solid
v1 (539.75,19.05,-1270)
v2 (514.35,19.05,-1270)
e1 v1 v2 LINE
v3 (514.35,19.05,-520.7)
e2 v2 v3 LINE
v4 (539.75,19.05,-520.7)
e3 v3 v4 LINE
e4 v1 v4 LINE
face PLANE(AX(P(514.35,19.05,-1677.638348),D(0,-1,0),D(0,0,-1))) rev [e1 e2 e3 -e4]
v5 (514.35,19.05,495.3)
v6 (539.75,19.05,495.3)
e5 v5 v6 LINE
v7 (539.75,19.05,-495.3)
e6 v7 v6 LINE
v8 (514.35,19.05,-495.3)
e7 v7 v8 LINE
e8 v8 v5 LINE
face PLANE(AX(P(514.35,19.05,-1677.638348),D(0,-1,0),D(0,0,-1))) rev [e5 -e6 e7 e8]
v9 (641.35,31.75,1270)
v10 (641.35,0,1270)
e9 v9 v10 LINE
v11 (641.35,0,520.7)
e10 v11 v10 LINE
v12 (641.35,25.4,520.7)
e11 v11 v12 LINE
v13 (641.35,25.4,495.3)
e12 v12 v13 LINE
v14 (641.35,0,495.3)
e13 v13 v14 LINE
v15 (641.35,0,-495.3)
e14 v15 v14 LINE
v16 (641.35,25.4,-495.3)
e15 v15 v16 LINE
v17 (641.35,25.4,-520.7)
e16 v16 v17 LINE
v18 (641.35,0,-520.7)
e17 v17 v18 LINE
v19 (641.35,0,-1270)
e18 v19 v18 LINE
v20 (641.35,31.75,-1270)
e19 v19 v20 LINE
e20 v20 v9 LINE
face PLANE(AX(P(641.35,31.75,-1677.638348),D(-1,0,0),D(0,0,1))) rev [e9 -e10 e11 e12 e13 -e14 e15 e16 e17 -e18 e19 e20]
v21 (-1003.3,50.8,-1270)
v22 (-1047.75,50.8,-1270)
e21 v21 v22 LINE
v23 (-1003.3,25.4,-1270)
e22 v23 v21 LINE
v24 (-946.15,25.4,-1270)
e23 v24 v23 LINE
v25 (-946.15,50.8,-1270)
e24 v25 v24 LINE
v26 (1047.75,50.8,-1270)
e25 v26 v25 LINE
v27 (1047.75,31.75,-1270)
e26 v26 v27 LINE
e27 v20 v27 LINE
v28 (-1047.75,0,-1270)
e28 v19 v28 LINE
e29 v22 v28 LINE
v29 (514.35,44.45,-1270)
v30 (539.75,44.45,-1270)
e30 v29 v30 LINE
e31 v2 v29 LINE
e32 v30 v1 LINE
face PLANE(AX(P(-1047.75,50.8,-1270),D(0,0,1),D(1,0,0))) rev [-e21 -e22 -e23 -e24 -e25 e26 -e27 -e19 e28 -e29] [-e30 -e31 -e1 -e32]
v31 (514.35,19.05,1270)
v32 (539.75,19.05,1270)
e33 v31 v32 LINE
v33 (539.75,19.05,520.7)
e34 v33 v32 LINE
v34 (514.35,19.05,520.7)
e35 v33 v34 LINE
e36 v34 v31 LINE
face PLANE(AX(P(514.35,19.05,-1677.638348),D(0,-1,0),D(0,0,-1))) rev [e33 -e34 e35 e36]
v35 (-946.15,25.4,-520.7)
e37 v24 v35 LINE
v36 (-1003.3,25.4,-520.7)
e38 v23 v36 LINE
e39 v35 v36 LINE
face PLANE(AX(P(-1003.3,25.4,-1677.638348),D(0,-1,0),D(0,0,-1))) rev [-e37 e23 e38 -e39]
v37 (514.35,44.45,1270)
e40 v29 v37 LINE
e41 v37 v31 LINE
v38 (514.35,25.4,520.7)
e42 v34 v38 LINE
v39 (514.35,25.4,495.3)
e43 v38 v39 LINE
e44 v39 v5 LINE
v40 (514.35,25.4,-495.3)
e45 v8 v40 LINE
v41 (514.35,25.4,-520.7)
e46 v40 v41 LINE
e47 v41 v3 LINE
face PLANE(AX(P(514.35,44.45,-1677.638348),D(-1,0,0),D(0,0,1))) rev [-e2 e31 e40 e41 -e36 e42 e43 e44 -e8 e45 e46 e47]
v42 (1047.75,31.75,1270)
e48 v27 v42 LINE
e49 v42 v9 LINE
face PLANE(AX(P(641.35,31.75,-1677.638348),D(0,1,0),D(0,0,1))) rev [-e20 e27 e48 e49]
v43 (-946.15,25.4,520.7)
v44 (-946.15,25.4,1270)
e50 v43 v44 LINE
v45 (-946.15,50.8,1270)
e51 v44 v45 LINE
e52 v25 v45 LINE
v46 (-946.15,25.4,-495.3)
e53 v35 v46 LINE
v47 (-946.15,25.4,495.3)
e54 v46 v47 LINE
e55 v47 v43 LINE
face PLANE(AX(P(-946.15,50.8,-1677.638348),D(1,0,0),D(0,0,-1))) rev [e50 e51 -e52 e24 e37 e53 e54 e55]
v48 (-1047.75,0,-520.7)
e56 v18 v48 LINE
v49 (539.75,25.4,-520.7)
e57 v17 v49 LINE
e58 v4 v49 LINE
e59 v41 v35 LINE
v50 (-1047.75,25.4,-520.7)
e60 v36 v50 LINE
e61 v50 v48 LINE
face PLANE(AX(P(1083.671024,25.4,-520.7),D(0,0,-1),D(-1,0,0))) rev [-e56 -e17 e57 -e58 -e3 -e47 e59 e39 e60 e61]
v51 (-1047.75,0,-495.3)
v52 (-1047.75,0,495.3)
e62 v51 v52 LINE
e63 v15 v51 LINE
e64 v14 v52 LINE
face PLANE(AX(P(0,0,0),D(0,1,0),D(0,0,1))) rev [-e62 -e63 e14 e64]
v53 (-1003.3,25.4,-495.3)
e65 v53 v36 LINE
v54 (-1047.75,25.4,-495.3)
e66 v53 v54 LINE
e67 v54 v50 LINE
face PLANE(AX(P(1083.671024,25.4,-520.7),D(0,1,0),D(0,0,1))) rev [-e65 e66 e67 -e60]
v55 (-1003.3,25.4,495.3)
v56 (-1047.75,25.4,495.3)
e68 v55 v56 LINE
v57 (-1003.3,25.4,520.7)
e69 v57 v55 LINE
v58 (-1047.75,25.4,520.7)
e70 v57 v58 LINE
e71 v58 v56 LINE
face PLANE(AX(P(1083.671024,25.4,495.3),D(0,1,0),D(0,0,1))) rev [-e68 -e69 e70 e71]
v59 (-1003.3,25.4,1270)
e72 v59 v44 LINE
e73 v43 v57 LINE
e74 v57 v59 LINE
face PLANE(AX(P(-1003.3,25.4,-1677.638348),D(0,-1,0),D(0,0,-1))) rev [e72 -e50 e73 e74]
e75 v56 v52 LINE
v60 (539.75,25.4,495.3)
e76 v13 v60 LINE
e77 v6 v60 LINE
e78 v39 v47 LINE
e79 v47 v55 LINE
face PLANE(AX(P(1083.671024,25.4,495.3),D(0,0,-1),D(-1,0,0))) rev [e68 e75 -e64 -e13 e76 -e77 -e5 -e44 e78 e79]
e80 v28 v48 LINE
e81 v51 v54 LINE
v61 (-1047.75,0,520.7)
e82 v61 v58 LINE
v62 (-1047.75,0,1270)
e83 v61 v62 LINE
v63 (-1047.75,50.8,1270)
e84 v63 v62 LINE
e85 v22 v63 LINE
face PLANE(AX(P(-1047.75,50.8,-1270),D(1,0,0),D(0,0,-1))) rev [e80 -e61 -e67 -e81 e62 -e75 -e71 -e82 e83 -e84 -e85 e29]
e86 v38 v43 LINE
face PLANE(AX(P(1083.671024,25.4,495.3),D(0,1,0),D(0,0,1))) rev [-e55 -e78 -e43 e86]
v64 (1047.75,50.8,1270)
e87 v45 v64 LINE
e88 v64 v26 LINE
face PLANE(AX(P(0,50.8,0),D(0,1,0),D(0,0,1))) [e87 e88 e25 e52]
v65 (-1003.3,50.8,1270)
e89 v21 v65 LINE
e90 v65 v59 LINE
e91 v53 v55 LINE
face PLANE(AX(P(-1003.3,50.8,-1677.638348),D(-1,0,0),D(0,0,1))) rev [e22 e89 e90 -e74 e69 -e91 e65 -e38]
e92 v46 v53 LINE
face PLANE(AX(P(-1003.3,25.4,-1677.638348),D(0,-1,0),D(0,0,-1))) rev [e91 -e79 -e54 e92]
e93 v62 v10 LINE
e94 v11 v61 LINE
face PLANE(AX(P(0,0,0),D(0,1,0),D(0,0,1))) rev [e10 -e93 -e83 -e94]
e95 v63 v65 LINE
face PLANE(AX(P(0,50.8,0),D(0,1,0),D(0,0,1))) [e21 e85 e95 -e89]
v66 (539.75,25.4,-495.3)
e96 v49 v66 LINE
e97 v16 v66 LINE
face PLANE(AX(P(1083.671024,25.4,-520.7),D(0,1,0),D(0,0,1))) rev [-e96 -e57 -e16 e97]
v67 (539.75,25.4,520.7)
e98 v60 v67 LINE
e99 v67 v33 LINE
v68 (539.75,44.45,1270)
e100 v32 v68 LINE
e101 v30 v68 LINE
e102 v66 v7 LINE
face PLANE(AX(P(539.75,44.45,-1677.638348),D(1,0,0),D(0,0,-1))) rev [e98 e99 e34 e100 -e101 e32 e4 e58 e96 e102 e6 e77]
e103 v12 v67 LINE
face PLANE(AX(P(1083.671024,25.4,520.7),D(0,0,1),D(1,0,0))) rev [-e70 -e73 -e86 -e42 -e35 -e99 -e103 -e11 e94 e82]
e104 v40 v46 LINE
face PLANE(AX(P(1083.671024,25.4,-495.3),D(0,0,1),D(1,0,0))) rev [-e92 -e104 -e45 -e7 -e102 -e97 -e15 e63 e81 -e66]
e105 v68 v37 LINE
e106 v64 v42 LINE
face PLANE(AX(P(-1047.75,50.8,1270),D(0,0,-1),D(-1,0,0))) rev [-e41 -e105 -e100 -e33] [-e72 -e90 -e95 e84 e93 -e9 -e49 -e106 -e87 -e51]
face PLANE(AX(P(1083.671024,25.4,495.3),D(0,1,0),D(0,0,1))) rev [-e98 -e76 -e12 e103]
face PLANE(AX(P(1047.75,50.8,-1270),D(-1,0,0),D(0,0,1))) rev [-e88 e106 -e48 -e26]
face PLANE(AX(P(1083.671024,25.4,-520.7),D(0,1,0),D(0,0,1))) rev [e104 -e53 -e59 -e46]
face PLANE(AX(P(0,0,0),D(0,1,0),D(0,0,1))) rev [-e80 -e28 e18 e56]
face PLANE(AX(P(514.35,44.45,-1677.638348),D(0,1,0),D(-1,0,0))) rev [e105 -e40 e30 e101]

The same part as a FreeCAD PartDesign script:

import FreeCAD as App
import Part
import Sketcher
Q = App.Units.Quantity


def add_polygon(sketch, points):
    """Adds a closed chain of lines whose ends are joined by coincident constraints."""
    first, n = sketch.GeometryCount, len(points)
    for a, b in zip(points, points[1:] + points[:1]):
        sketch.addGeometry(Part.LineSegment(App.Vector(*a, 0), App.Vector(*b, 0)), False)
    for i in range(n):
        sketch.addConstraint(Sketcher.Constraint("Coincident", first + i, 2, first + (i + 1) % n, 1))

doc = App.newDocument("Part")
body = doc.addObject("PartDesign::Body", "Body")

# Sketch on XZ plane
sketch1 = doc.addObject("Sketcher::SketchObject", "Sketch")
body.addObject(sketch1)
sketch1.AttachmentSupport = (doc.XZ_Plane, [""])
sketch1.MapMode = "FlatFace"
add_polygon(sketch1, [(-1048, -1270), (-1048, 1270), (1048, 1270), (1048, -1270)])  # lines 0-3
sketch1.addConstraint(Sketcher.Constraint("Vertical", 0))
sketch1.addConstraint(Sketcher.Constraint("Horizontal", 1))
sketch1.addConstraint(Sketcher.Constraint("Vertical", 2))
sketch1.addConstraint(Sketcher.Constraint("Horizontal", 3))
sketch1.addConstraint(Sketcher.Constraint("Symmetric", 0, 2, 2, 2, -1, 1))
sketch1.addConstraint(Sketcher.Constraint("DistanceY", 0, 1, 0, 2, Q("100 in")))
sketch1.addConstraint(Sketcher.Constraint("DistanceX", 1, 1, 1, 2, Q("82.5 in")))
pad1 = doc.addObject("PartDesign::Pad", "Pad")
body.addObject(pad1)
pad1.Profile = sketch1
pad1.Length = Q("2 in")
pad1.Reversed = True

# Sketch on XY plane
sketch2 = doc.addObject("Sketcher::SketchObject", "Sketch001")
body.addObject(sketch2)
sketch2.AttachmentSupport = (doc.XY_Plane, [""])
sketch2.MapMode = "FlatFace"
sketch2.AttachmentOffset = App.Placement(App.Vector(0, 0, 50 * 25.4), App.Rotation())
add_polygon(sketch2, [(-1003, 51), (-1003, 25), (-946, 25), (-946, 51)])  # lines 0-3
add_polygon(sketch2, [(641, 32), (641, 0), (1048, 0), (1048, 32)])  # lines 4-7
add_polygon(sketch2, [(514, 44), (514, 19), (540, 19), (540, 44)])  # lines 8-11
sketch2.addConstraint(Sketcher.Constraint("Vertical", 0))
sketch2.addConstraint(Sketcher.Constraint("Horizontal", 1))
sketch2.addConstraint(Sketcher.Constraint("Vertical", 2))
sketch2.addConstraint(Sketcher.Constraint("Horizontal", 3))
sketch2.addConstraint(Sketcher.Constraint("Vertical", 4))
sketch2.addConstraint(Sketcher.Constraint("Horizontal", 5))
sketch2.addConstraint(Sketcher.Constraint("Vertical", 6))
sketch2.addConstraint(Sketcher.Constraint("Horizontal", 7))
sketch2.addConstraint(Sketcher.Constraint("Vertical", 8))
sketch2.addConstraint(Sketcher.Constraint("Horizontal", 9))
sketch2.addConstraint(Sketcher.Constraint("Vertical", 10))
sketch2.addConstraint(Sketcher.Constraint("Horizontal", 11))
sketch2.addConstraint(Sketcher.Constraint("PointOnObject", 4, 2, -1))
sketch2.addConstraint(Sketcher.Constraint("Equal", 11, 0))
sketch2.addConstraint(Sketcher.Constraint("Equal", 2, 8))
sketch2.addConstraint(Sketcher.Constraint("DistanceX", 5, 1, 5, 2, Q("16 in")))
sketch2.addConstraint(Sketcher.Constraint("DistanceX", 9, 1, 9, 2, Q("1 in")))
sketch2.addConstraint(Sketcher.Constraint("DistanceY", -1, 1, 0, 2, Q("1 in")))
sketch2.addConstraint(Sketcher.Constraint("DistanceX", 8, 2, 7, 2, Q("5 in")))
sketch2.addConstraint(Sketcher.Constraint("DistanceX", 1, 1, 1, 2, Q("2.25 in")))
sketch2.addConstraint(Sketcher.Constraint("DistanceY", 4, 2, 4, 1, Q("1.25 in")))
sketch2.addConstraint(Sketcher.Constraint("DistanceX", 0, 2, -1, 1, Q("39.5 in")))
sketch2.addConstraint(Sketcher.Constraint("DistanceX", 1, 2, 4, 2, Q("62.5 in")))
sketch2.addConstraint(Sketcher.Constraint("DistanceY", 8, 2, 7, 2, Q("0.5 in")))
pocket1 = doc.addObject("PartDesign::Pocket", "Pocket")
body.addObject(pocket1)
pocket1.Profile = sketch2
pocket1.Length = Q("100 in")

# Sketch on YZ plane
sketch3 = doc.addObject("Sketcher::SketchObject", "Sketch002")
body.addObject(sketch3)
sketch3.AttachmentSupport = (doc.YZ_Plane, [""])
sketch3.MapMode = "FlatFace"
sketch3.AttachmentOffset = App.Placement(App.Vector(0, 0, -41.25 * 25.4), App.Rotation())
add_polygon(sketch3, [(25, -521), (0, -521), (0, -495), (25, -495)])  # lines 0-3
add_polygon(sketch3, [(25, 495), (0, 495), (0, 521), (25, 521)])  # lines 4-7
sketch3.addConstraint(Sketcher.Constraint("Horizontal", 0))
sketch3.addConstraint(Sketcher.Constraint("Vertical", 1))
sketch3.addConstraint(Sketcher.Constraint("Horizontal", 2))
sketch3.addConstraint(Sketcher.Constraint("Vertical", 3))
sketch3.addConstraint(Sketcher.Constraint("Horizontal", 4))
sketch3.addConstraint(Sketcher.Constraint("Vertical", 5))
sketch3.addConstraint(Sketcher.Constraint("Horizontal", 6))
sketch3.addConstraint(Sketcher.Constraint("Vertical", 7))
sketch3.addConstraint(Sketcher.Constraint("Symmetric", 1, 2, 4, 2, -1, 1))
sketch3.addConstraint(Sketcher.Constraint("Symmetric", 0, 2, 5, 2, -1))
sketch3.addConstraint(Sketcher.Constraint("Vertical", 3, 2, 6, 2))
sketch3.addConstraint(Sketcher.Constraint("Equal", 6, 1))
sketch3.addConstraint(Sketcher.Constraint("DistanceX", 0, 2, 0, 1, Q("1 in")))
sketch3.addConstraint(Sketcher.Constraint("DistanceY", 1, 2, 4, 2, Q("39 in")))
pocket2 = doc.addObject("PartDesign::Pocket", "Pocket001")
body.addObject(pocket2)
pocket2.Profile = sketch3
pocket2.Length = Q("82.5 in")
pocket2.Reversed = True

doc.recompute()
